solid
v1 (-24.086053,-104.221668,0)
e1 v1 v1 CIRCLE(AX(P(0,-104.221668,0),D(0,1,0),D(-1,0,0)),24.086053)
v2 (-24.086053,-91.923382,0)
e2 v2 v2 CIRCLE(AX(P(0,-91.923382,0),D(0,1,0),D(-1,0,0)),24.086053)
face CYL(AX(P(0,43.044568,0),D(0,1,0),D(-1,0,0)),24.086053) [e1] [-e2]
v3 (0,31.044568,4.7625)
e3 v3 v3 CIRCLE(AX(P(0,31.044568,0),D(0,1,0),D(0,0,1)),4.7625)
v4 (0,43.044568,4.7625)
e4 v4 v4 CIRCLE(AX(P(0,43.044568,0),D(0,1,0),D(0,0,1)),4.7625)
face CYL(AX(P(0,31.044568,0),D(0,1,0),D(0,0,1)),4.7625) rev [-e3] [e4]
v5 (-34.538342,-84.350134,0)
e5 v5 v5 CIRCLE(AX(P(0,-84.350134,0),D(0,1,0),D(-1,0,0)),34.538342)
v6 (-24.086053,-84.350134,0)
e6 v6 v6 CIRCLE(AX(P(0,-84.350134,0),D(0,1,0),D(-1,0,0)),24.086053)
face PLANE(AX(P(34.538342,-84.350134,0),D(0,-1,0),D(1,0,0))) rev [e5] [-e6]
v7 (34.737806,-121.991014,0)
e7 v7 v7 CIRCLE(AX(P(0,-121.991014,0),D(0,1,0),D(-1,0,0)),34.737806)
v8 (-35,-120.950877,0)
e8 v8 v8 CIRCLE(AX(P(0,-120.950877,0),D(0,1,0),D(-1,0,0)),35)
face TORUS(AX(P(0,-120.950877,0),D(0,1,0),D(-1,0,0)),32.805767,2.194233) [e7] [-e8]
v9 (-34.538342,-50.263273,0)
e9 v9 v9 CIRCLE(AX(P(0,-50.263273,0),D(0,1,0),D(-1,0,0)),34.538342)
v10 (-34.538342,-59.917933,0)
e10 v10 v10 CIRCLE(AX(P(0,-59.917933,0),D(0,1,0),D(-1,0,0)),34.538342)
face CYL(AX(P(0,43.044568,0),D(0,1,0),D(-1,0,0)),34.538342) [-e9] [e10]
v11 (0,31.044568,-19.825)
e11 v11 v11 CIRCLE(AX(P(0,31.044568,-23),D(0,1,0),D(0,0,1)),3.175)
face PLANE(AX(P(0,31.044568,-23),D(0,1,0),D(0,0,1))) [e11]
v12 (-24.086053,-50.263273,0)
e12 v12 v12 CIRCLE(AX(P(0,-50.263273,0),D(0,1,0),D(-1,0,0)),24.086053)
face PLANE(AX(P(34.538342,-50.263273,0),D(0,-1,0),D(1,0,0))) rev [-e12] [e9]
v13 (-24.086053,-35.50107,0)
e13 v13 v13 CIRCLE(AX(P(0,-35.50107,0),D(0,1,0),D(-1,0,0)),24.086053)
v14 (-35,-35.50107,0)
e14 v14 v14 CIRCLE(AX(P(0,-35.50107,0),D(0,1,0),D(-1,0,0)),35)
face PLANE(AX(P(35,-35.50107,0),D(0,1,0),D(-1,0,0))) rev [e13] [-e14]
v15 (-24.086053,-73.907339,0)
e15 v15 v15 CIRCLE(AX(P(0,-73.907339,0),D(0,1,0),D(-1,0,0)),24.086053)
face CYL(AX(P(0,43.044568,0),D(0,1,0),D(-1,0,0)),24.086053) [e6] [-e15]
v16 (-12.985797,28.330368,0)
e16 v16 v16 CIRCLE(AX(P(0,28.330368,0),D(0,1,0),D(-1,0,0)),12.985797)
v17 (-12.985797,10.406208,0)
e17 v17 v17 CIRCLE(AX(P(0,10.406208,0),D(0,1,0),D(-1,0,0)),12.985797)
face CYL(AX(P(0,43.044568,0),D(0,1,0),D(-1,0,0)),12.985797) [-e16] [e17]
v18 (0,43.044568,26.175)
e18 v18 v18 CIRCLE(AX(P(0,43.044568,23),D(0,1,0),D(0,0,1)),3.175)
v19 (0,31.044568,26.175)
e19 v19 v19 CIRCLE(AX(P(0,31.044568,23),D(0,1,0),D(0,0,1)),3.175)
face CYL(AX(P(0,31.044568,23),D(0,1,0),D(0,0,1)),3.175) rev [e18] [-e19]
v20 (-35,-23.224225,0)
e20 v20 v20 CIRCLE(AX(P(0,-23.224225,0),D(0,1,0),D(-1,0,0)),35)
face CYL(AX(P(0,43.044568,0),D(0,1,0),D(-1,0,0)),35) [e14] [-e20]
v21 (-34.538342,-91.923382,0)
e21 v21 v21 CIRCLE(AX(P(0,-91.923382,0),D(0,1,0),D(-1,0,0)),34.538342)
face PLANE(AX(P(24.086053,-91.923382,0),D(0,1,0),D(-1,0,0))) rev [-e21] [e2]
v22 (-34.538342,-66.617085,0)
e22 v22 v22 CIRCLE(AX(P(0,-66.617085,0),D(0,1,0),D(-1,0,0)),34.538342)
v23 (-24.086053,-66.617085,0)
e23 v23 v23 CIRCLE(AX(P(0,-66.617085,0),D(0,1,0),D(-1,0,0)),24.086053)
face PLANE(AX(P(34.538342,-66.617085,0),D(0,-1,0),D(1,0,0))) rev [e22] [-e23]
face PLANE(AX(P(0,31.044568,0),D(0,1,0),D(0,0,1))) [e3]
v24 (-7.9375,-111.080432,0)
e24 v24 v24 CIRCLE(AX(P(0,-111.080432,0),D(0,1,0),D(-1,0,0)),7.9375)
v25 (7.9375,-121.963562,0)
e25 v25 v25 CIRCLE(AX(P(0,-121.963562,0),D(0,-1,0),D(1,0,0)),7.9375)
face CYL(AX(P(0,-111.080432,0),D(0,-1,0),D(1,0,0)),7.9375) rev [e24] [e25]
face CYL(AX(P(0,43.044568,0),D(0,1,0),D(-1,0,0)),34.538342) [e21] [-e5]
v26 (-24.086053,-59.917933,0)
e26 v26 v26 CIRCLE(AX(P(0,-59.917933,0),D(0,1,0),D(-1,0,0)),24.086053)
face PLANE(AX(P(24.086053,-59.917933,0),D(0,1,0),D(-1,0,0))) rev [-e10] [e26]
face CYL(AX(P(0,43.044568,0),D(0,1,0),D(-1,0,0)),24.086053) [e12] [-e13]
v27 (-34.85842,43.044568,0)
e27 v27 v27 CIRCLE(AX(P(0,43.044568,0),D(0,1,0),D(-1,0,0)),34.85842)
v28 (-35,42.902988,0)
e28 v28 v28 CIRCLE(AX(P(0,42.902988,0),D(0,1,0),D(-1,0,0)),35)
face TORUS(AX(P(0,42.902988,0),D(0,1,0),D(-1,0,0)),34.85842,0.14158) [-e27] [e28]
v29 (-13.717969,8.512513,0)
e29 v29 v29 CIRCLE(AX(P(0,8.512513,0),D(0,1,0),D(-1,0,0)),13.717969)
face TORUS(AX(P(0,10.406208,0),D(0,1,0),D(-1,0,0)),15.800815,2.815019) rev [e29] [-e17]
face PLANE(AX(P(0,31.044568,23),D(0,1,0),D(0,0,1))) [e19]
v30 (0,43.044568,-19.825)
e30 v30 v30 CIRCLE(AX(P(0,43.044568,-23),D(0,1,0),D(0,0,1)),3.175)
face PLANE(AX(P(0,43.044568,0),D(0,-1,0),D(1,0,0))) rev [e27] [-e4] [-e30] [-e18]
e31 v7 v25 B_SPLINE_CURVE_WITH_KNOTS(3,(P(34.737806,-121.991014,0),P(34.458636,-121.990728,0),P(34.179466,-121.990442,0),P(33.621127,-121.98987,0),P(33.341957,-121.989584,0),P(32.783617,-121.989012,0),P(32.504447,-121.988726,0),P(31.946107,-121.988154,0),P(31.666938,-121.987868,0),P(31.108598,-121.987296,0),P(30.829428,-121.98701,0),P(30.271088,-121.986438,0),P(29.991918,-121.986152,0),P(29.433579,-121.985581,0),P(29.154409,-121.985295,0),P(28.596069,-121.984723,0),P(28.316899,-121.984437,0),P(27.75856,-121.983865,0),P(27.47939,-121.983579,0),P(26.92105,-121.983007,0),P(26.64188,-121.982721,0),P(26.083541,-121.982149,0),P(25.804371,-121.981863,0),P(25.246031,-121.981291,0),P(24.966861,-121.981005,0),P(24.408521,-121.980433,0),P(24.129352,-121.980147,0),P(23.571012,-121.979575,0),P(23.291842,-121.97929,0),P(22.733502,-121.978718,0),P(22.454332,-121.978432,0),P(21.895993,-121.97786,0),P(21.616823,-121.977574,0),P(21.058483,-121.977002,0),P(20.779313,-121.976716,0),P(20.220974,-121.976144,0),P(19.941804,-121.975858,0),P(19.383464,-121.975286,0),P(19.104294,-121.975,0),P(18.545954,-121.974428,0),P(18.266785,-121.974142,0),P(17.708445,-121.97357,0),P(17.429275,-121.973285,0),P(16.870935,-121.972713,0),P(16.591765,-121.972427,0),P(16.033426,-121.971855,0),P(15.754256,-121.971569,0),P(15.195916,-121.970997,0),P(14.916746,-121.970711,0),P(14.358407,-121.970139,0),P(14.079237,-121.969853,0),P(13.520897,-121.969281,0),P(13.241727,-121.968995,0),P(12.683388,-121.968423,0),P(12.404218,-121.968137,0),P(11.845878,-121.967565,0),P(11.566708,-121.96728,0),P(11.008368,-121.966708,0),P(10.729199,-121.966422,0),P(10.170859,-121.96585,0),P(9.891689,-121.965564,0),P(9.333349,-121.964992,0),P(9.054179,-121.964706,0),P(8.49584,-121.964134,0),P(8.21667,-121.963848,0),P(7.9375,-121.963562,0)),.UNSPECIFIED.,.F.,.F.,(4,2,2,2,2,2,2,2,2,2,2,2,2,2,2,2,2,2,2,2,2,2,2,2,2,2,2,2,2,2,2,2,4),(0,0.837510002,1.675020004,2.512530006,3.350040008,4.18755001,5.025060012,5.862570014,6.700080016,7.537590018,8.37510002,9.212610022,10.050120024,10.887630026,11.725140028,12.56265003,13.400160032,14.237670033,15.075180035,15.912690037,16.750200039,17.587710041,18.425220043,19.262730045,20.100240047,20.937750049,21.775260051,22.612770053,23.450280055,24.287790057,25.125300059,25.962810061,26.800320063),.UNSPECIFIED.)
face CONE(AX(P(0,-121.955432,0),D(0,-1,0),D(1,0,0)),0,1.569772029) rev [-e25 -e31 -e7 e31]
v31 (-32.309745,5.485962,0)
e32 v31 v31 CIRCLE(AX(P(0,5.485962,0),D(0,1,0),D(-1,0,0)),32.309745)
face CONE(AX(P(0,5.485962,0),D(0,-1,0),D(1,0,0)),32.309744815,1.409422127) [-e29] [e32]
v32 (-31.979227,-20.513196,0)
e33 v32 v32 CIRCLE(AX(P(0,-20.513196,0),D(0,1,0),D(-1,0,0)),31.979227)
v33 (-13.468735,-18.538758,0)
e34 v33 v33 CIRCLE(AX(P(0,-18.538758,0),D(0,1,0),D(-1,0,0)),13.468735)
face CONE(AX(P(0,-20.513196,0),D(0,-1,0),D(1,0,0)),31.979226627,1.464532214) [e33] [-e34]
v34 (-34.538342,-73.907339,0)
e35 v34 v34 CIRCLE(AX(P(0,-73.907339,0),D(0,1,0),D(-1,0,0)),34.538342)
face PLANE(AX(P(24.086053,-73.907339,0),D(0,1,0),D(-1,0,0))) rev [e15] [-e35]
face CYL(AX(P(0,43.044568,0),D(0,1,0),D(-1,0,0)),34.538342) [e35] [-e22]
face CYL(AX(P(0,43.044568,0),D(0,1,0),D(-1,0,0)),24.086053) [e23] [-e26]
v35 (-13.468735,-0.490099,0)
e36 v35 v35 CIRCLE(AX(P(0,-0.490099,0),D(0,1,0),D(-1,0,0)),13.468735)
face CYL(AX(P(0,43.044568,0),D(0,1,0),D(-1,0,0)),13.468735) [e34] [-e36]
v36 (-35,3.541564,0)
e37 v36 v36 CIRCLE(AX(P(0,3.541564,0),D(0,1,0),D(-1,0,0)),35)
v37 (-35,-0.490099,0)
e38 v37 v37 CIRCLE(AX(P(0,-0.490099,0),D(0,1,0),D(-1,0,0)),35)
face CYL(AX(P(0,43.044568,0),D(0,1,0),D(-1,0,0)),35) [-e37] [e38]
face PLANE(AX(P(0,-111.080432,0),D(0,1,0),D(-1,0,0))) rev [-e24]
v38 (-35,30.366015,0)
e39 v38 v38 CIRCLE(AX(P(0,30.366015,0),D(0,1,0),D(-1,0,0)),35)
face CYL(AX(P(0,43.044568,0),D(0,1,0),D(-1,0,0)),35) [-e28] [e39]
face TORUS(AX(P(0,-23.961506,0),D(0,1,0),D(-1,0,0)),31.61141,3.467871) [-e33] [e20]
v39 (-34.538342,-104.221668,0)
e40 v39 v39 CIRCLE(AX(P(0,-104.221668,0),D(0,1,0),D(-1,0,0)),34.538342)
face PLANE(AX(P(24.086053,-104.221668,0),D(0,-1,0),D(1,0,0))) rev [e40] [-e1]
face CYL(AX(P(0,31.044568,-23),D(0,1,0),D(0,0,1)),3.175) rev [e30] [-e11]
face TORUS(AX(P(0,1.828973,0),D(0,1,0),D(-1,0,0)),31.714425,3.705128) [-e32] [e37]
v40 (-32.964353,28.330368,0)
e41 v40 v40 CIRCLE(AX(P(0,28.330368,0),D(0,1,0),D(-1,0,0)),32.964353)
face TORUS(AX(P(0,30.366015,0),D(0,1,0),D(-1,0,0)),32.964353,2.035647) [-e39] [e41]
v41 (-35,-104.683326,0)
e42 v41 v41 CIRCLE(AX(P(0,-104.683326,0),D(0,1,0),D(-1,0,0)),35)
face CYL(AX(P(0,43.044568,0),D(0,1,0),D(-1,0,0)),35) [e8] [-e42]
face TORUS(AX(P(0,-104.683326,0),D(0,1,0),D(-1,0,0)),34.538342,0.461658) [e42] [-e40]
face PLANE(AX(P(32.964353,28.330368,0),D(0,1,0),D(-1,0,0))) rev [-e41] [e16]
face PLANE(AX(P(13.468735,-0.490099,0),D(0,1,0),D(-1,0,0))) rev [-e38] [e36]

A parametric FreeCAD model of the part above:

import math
import FreeCAD as App
import Part
import Sketcher

V = App.Vector
Q = App.Units.Quantity

doc = App.newDocument("Part")
body = doc.addObject("PartDesign::Body", "Body")

# Sketch on XY plane
sketch1 = body.newObject("Sketcher::SketchObject", "Sketch")
sketch1.AttachmentSupport = (doc.getObject("XY_Plane"), [""])
sketch1.MapMode = "FlatFace"
sketch1.addGeometry([
    Part.LineSegment(V(34.85842, 43.044568, 0), V(0, 43.044568, 0)),  # 0
    Part.LineSegment(V(0, 43.044568, 0), V(0, -121.955432, 0)),  # 1
    Part.LineSegment(V(0, -121.955432, 0), V(34.737806, -121.991014, 0)),  # 2
    Part.ArcOfCircle(Part.Circle(V(32.805767, -120.950877, 0), V(0, 0, 1), 2.194233), math.radians(-28.296333), math.radians(0)),  # 3
    Part.LineSegment(V(35, -120.950877, 0), V(35, -104.683326, 0)),  # 4
    Part.ArcOfCircle(Part.Circle(V(34.538342, -104.683326, 0), V(0, 0, 1), 0.461658), math.radians(0), math.radians(90)),  # 5
    Part.LineSegment(V(34.538342, -104.221668, 0), V(24.086053, -104.221668, 0)),  # 6
    Part.LineSegment(V(24.086053, -104.221668, 0), V(24.086053, -91.923382, 0)),  # 7
    Part.LineSegment(V(24.086053, -91.923382, 0), V(34.538342, -91.923382, 0)),  # 8
    Part.LineSegment(V(34.538342, -91.923382, 0), V(34.538342, -84.350134, 0)),  # 9
    Part.LineSegment(V(34.538342, -84.350134, 0), V(24.086053, -84.350134, 0)),  # 10
    Part.LineSegment(V(24.086053, -84.350134, 0), V(24.086053, -73.907339, 0)),  # 11
    Part.LineSegment(V(24.086053, -73.907339, 0), V(34.538342, -73.907339, 0)),  # 12
    Part.LineSegment(V(34.538342, -73.907339, 0), V(34.538342, -66.617085, 0)),  # 13
    Part.LineSegment(V(34.538342, -66.617085, 0), V(24.086053, -66.617085, 0)),  # 14
    Part.LineSegment(V(24.086053, -66.617085, 0), V(24.086053, -59.917933, 0)),  # 15
    Part.LineSegment(V(24.086053, -59.917933, 0), V(34.538342, -59.917933, 0)),  # 16
    Part.LineSegment(V(34.538342, -59.917933, 0), V(34.538342, -50.263273, 0)),  # 17
    Part.LineSegment(V(34.538342, -50.263273, 0), V(24.086053, -50.263273, 0)),  # 18
    Part.LineSegment(V(24.086053, -50.263273, 0), V(24.086053, -35.50107, 0)),  # 19
    Part.LineSegment(V(24.086053, -35.50107, 0), V(35, -35.50107, 0)),  # 20
    Part.LineSegment(V(35, -35.50107, 0), V(35, -23.224225, 0)),  # 21
    Part.ArcOfCircle(Part.Circle(V(31.61141, -23.961506, 0), V(0, 0, 1), 3.467871), math.radians(12.274964), math.radians(83.911515)),  # 22
    Part.LineSegment(V(31.979227, -20.513196, 0), V(13.468735, -18.538758, 0)),  # 23
    Part.LineSegment(V(13.468735, -18.538758, 0), V(13.468735, -0.490099, 0)),  # 24
    Part.LineSegment(V(13.468735, -0.490099, 0), V(35, -0.490099, 0)),  # 25
    Part.LineSegment(V(35, -0.490099, 0), V(35, 3.541564, 0)),  # 26
    Part.ArcOfCircle(Part.Circle(V(31.714425, 1.828973, 0), V(0, 0, 1), 3.705128), math.radians(27.530559), math.radians(80.753939)),  # 27
    Part.LineSegment(V(32.309745, 5.485962, 0), V(13.717969, 8.512513, 0)),  # 28
    Part.ArcOfCircle(Part.Circle(V(15.800815, 10.406208, 0), V(0, 0, 1), 2.815019), math.radians(-180), math.radians(-137.723326)),  # 29
    Part.LineSegment(V(12.985797, 10.406208, 0), V(12.985797, 28.330368, 0)),  # 30
    Part.LineSegment(V(12.985797, 28.330368, 0), V(32.964353, 28.330368, 0)),  # 31
    Part.ArcOfCircle(Part.Circle(V(32.964353, 30.366015, 0), V(0, 0, 1), 2.035647), math.radians(-90), math.radians(0)),  # 32
    Part.LineSegment(V(35, 30.366015, 0), V(35, 42.902988, 0)),  # 33
    Part.ArcOfCircle(Part.Circle(V(34.85842, 42.902988, 0), V(0, 0, 1), 0.14158), math.radians(0), math.radians(90)),  # 34
], False)
sketch1.addConstraint([
    Sketcher.Constraint("Coincident", 0, 2, 1, 1),
    Sketcher.Constraint("Coincident", 1, 2, 2, 1),
    Sketcher.Constraint("Coincident", 2, 2, 3, 1),
    Sketcher.Constraint("Tangent", 3, 2, 4, 1),
    Sketcher.Constraint("Tangent", 4, 2, 5, 1),
    Sketcher.Constraint("Tangent", 5, 2, 6, 1),
    Sketcher.Constraint("Coincident", 6, 2, 7, 1),
    Sketcher.Constraint("Coincident", 7, 2, 8, 1),
    Sketcher.Constraint("Coincident", 8, 2, 9, 1),
    Sketcher.Constraint("Coincident", 9, 2, 10, 1),
    Sketcher.Constraint("Coincident", 10, 2, 11, 1),
    Sketcher.Constraint("Coincident", 11, 2, 12, 1),
    Sketcher.Constraint("Coincident", 12, 2, 13, 1),
    Sketcher.Constraint("Coincident", 13, 2, 14, 1),
    Sketcher.Constraint("Coincident", 14, 2, 15, 1),
    Sketcher.Constraint("Coincident", 15, 2, 16, 1),
    Sketcher.Constraint("Coincident", 16, 2, 17, 1),
    Sketcher.Constraint("Coincident", 17, 2, 18, 1),
    Sketcher.Constraint("Coincident", 18, 2, 19, 1),
    Sketcher.Constraint("Coincident", 19, 2, 20, 1),
    Sketcher.Constraint("Coincident", 20, 2, 21, 1),
    Sketcher.Constraint("Coincident", 21, 2, 22, 1),
    Sketcher.Constraint("Tangent", 22, 2, 23, 1),
    Sketcher.Constraint("Coincident", 23, 2, 24, 1),
    Sketcher.Constraint("Coincident", 24, 2, 25, 1),
    Sketcher.Constraint("Coincident", 25, 2, 26, 1),
    Sketcher.Constraint("Coincident", 26, 2, 27, 1),
    Sketcher.Constraint("Tangent", 27, 2, 28, 1),
    Sketcher.Constraint("Coincident", 28, 2, 29, 2),
    Sketcher.Constraint("Tangent", 29, 1, 30, 1),
    Sketcher.Constraint("Coincident", 30, 2, 31, 1),
    Sketcher.Constraint("Tangent", 31, 2, 32, 1),
    Sketcher.Constraint("Tangent", 32, 2, 33, 1),
    Sketcher.Constraint("Tangent", 33, 2, 34, 1),
    Sketcher.Constraint("Tangent", 34, 2, 0, 1),
    Sketcher.Constraint("Horizontal", 0),
    Sketcher.Constraint("Vertical", 1),
    Sketcher.Constraint("Vertical", 4),
    Sketcher.Constraint("Horizontal", 6),
    Sketcher.Constraint("Vertical", 7),
    Sketcher.Constraint("Horizontal", 8),
    Sketcher.Constraint("Vertical", 9),
    Sketcher.Constraint("Horizontal", 10),
    Sketcher.Constraint("Vertical", 11),
    Sketcher.Constraint("Horizontal", 12),
    Sketcher.Constraint("Vertical", 13),
    Sketcher.Constraint("Horizontal", 14),
    Sketcher.Constraint("Vertical", 15),
    Sketcher.Constraint("Horizontal", 16),
    Sketcher.Constraint("Vertical", 17),
    Sketcher.Constraint("Horizontal", 18),
    Sketcher.Constraint("Vertical", 19),
    Sketcher.Constraint("Horizontal", 20),
    Sketcher.Constraint("Vertical", 21),
    Sketcher.Constraint("Vertical", 24),
    Sketcher.Constraint("Horizontal", 25),
    Sketcher.Constraint("Vertical", 26),
    Sketcher.Constraint("Vertical", 30),
    Sketcher.Constraint("Horizontal", 31),
    Sketcher.Constraint("Vertical", 33),
    Sketcher.Constraint("PointOnObject", 0, 2, -2),
    Sketcher.Constraint("Vertical", 5, 2, 8, 2),
    Sketcher.Constraint("Vertical", 7, 2, 10, 2),
    Sketcher.Constraint("Vertical", 9, 2, 12, 2),
    Sketcher.Constraint("Vertical", 11, 2, 14, 2),
    Sketcher.Constraint("Vertical", 13, 2, 16, 2),
    Sketcher.Constraint("Vertical", 15, 2, 18, 2),
    Sketcher.Constraint("Vertical", 4, 2, 20, 2),
    Sketcher.Constraint("Vertical", 21, 2, 25, 2),
    Sketcher.Constraint("Vertical", 26, 2, 32, 2),
    Sketcher.Constraint("Radius", 22, Q("3.467871 mm")),
    Sketcher.Constraint("Radius", 29, Q("2.815019 mm")),
    Sketcher.Constraint("Radius", 34, Q("0.14158 mm")),
    Sketcher.Constraint("DistanceY", 1, 2, 1, 1, Q("165 mm")),
    Sketcher.Constraint("Radius", 3, Q("2.194233 mm")),
    Sketcher.Constraint("Radius", 5, Q("0.461658 mm")),
    Sketcher.Constraint("Radius", 27, Q("3.705128 mm")),
    Sketcher.Constraint("Radius", 32, Q("2.035647 mm")),
    Sketcher.Constraint("DistanceX", 0, 2, 0, 1, Q("34.85842 mm")),
    Sketcher.Constraint("DistanceX", 6, 2, 6, 1, Q("10.452289 mm")),
    Sketcher.Constraint("DistanceY", 4, 1, 4, 2, Q("16.267551 mm")),
    Sketcher.Constraint("DistanceY", 15, 1, 15, 2, Q("6.699152 mm")),
    Sketcher.Constraint("DistanceY", 17, 1, 17, 2, Q("9.65466 mm")),
    Sketcher.Constraint("DistanceY", 24, 1, 24, 2, Q("18.048659 mm")),
    Sketcher.Constraint("DistanceY", 30, 1, 30, 2, Q("17.92416 mm")),
    Sketcher.Constraint("DistanceY", 24, 2, -1, 1, Q("0.490099 mm")),
    Sketcher.Constraint("DistanceY", 5, 3, 27, 3, Q("106.512299 mm")),
    Sketcher.Constraint("DistanceY", 10, 2, 15, 2, Q("24.432201 mm")),
    Sketcher.Constraint("DistanceY", 21, 2, 27, 3, Q("25.053198 mm")),
    Sketcher.Constraint("DistanceY", 26, 2, 27, 2, Q("1.944398 mm")),
    Sketcher.Constraint("DistanceY", 30, 2, 0, 2, Q("14.7142 mm")),
    Sketcher.Constraint("Distance", 28, Q("18.836511 mm")),
    Sketcher.Constraint("DistanceX", 25, 1, 25, 2, Q("21.531265 mm")),
    Sketcher.Constraint("DistanceX", 31, 1, 31, 2, Q("19.978556 mm")),
    Sketcher.Constraint("DistanceY", 7, 1, 7, 2, Q("12.298286 mm")),
    Sketcher.Constraint("DistanceY", 9, 1, 9, 2, Q("7.573247 mm")),
    Sketcher.Constraint("DistanceY", 11, 1, 11, 2, Q("10.442796 mm")),
    Sketcher.Constraint("DistanceY", 19, 1, 19, 2, Q("14.762204 mm")),
    Sketcher.Constraint("DistanceY", 26, 1, 26, 2, Q("4.031662 mm")),
    Sketcher.Constraint("DistanceX", -1, 1, 22, 3, Q("31.61141 mm")),
    Sketcher.Constraint("DistanceY", -1, 1, 0, 2, Q("43.044568 mm")),
    Sketcher.Constraint("DistanceX", 3, 3, 2, 2, Q("1.932039 mm")),
])
revolution = body.newObject("PartDesign::Revolution", "Revolution")
revolution.Profile = sketch1
revolution.ReferenceAxis = (sketch1, ["V_Axis"])
revolution.Angle = 360

# Sketch on XZ plane
sketch2 = body.newObject("Sketcher::SketchObject", "Sketch001")
sketch2.AttachmentSupport = (doc.getObject("XZ_Plane"), [""])
sketch2.MapMode = "FlatFace"
sketch2.AttachmentOffset = App.Placement(V(0, 0, -43.044568), App.Rotation())
sketch2.addGeometry([
    Part.Circle(V(0, -23, 0), V(0, 0, 1), 3.175),
    Part.Circle(V(0, 23, 0), V(0, 0, 1), 3.175),
], False)
sketch2.addConstraint([
    Sketcher.Constraint("Equal", 0, 1),
    Sketcher.Constraint("Symmetric", 0, 3, 1, 3, -1, 1),
    Sketcher.Constraint("PointOnObject", 0, 3, -2),
    Sketcher.Constraint("Diameter", 0, Q("0.25 in")),
    Sketcher.Constraint("DistanceY", 0, 3, -1, 1, Q("23 mm")),
])
pocket1 = body.newObject("PartDesign::Pocket", "Pocket")
pocket1.Profile = sketch2
pocket1.Length = 12
pocket1.Reversed = True

# Sketch on XZ plane
sketch3 = body.newObject("Sketcher::SketchObject", "Sketch002")
sketch3.AttachmentSupport = (doc.getObject("XZ_Plane"), [""])
sketch3.MapMode = "FlatFace"
sketch3.AttachmentOffset = App.Placement(V(0, 0, -43.044568), App.Rotation())
sketch3.addGeometry(Part.Circle(V(0, 0, 0), V(0, 0, 1), 4.7625), False)
sketch3.addConstraint([
    Sketcher.Constraint("Coincident", 0, 3, -1, 1),
    Sketcher.Constraint("Diameter", 0, Q("0.375 in")),
])
pocket2 = body.newObject("PartDesign::Pocket", "Pocket001")
pocket2.Profile = sketch3
pocket2.Length = 12
pocket2.Reversed = True

# Sketch on XZ plane
sketch4 = body.newObject("Sketcher::SketchObject", "Sketch003")
sketch4.AttachmentSupport = (doc.getObject("XZ_Plane"), [""])
sketch4.MapMode = "FlatFace"
sketch4.AttachmentOffset = App.Placement(V(0, 0, 126.955432), App.Rotation())
sketch4.addGeometry(Part.Circle(V(0, 0, 0), V(0, 0, 1), 7.9375), False)
sketch4.addConstraint([
    Sketcher.Constraint("Coincident", 0, 3, -1, 1),
    Sketcher.Constraint("Diameter", 0, Q("0.625 in")),
])
pocket3 = body.newObject("PartDesign::Pocket", "Pocket002")
pocket3.Profile = sketch4
pocket3.Length = Q("0.625 in")

doc.recompute()
